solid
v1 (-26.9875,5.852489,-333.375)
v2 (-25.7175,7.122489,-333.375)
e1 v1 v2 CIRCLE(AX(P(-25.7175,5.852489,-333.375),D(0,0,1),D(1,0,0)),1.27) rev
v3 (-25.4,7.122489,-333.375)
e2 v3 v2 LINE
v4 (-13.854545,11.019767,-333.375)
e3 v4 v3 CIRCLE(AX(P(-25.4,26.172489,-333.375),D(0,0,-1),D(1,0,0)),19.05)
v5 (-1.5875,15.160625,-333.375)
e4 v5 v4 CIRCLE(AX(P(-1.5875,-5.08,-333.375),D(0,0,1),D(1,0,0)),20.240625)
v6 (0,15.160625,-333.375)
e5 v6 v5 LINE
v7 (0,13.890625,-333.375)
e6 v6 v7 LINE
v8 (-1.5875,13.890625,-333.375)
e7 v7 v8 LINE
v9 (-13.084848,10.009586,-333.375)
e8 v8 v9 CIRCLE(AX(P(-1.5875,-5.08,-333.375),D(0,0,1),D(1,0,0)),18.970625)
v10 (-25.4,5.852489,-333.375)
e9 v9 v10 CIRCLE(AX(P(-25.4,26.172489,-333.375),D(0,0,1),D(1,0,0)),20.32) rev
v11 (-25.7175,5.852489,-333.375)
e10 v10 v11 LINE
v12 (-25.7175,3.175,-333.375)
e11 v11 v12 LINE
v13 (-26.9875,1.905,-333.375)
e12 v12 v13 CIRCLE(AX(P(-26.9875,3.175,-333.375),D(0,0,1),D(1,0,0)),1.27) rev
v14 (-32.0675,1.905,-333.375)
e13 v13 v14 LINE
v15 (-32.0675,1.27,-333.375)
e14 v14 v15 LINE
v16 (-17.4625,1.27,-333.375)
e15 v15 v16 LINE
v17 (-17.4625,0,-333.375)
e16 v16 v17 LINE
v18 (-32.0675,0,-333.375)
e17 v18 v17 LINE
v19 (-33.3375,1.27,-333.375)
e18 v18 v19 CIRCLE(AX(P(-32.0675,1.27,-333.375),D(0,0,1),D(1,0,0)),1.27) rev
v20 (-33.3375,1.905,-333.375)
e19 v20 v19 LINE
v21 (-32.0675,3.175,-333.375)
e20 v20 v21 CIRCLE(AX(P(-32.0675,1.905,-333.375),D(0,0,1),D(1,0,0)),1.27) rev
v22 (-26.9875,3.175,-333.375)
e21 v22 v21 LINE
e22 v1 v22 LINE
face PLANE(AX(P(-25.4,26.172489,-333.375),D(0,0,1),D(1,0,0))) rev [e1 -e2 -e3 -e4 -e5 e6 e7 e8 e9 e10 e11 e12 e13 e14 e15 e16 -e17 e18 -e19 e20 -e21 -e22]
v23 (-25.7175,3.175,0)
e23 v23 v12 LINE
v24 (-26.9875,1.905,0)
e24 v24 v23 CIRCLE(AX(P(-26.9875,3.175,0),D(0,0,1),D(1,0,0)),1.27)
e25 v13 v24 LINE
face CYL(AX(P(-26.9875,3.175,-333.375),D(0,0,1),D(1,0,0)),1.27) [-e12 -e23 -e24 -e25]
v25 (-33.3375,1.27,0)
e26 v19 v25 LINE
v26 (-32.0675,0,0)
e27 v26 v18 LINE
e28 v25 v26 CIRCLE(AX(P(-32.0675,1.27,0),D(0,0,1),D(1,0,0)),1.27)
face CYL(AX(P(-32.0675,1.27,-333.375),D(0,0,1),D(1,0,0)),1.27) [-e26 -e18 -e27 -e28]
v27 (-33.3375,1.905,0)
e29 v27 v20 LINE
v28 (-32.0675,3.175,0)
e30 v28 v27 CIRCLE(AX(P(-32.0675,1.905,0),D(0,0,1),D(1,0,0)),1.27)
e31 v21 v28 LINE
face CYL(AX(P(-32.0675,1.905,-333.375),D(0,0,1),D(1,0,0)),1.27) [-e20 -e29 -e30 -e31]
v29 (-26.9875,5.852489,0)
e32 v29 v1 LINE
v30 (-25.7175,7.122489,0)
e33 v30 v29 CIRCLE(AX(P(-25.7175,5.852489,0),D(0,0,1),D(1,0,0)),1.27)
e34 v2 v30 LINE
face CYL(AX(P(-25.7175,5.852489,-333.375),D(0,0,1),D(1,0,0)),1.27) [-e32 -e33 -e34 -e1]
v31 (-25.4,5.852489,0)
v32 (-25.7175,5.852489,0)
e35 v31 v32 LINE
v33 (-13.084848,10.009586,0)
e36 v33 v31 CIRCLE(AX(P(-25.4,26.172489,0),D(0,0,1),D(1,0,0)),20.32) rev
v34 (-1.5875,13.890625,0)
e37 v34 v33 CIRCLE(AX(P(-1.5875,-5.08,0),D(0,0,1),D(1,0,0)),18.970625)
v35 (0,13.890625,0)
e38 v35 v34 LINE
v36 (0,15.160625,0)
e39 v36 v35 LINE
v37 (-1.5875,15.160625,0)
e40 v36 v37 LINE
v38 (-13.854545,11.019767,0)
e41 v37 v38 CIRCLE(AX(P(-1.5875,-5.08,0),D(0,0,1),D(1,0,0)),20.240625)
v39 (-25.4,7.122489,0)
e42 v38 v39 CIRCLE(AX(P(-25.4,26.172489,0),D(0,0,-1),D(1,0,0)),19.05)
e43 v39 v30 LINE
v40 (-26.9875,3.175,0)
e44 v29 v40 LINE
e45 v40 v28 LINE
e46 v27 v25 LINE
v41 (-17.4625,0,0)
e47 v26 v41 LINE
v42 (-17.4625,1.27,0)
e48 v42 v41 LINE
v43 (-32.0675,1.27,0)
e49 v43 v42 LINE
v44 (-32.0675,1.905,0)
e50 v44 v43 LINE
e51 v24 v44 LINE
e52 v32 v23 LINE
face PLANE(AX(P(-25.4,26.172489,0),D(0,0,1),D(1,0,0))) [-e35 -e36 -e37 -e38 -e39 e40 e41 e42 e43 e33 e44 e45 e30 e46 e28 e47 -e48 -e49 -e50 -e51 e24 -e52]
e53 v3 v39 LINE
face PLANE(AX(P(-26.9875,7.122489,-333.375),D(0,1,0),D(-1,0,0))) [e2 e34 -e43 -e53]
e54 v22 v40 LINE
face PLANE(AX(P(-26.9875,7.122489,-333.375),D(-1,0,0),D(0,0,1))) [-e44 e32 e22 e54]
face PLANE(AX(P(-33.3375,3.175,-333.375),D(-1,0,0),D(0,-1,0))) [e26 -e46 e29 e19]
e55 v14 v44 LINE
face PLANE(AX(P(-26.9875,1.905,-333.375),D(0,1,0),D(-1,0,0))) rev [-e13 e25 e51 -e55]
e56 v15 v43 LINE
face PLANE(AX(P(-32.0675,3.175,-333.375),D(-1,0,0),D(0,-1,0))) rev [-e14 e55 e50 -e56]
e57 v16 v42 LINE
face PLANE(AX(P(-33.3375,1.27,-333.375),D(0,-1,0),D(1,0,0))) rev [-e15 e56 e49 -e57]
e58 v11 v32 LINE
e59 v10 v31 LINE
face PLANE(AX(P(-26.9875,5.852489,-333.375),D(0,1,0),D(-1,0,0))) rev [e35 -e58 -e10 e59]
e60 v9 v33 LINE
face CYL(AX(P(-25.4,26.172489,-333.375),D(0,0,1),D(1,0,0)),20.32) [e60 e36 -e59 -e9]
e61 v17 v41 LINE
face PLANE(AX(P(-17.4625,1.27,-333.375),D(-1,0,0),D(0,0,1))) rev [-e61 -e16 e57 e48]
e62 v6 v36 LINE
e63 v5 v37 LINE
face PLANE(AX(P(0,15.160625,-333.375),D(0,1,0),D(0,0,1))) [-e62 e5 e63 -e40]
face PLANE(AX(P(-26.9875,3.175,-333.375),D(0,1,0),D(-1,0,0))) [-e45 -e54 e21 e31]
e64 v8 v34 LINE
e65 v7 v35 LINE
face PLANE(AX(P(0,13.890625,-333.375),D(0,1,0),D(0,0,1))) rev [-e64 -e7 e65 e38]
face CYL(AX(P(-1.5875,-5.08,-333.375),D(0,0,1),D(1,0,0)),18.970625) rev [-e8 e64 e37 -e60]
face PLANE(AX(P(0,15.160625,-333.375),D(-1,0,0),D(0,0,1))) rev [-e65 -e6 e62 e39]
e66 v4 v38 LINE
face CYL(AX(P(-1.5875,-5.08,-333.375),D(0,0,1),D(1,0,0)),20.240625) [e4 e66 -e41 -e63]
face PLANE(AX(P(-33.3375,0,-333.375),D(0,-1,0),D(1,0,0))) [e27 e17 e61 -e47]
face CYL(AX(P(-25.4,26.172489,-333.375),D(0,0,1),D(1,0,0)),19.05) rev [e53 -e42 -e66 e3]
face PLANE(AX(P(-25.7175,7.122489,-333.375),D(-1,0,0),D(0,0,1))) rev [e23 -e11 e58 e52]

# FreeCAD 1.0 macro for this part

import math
import FreeCAD as App
import Part
import Sketcher
Q = App.Units.Quantity


def edges_at(feature, points):
    """Names of the edges that pass closest to the given points."""
    edges = feature.Shape.Edges
    near = lambda p: min(range(len(edges)), key=lambda i: edges[i].distToShape(Part.Vertex(*p))[0])
    return sorted({f"Edge{near(p) + 1}" for p in points})

doc = App.newDocument("Part")
params = doc.addObject("Spreadsheet::Sheet", "Params")
for row, (alias, value) in enumerate([
    ("sketch1_radius", "0.8 in"),
    ("sketch1_radius2", "0.75 in"),
    ("sketch1_radius3", "0.796875 in"),
    ("sketch1_width", "0.25 in"),
    ("sketch1_width2", "0.0625 in"),
    ("pad1_length", "13.125 in"),
    ("fillet_radius", "0.05 in"),
], start=1):
    params.set(f"A{row}", alias)
    params.set(f"B{row}", "=" + value)
    params.setAlias(f"B{row}", alias)

body = doc.addObject("PartDesign::Body", "Body")

# Sketch on XY plane
sketch1 = body.newObject("Sketcher::SketchObject", "Sketch")
sketch1.AttachmentSupport = (doc.getObject("XY_Plane"), [""])
sketch1.MapMode = "FlatFace"
sketch1.addGeometry(Part.LineSegment(App.Vector(0, 15.16, 0), App.Vector(-1.59, 15.16, 0)), False)
sketch1.addGeometry(Part.ArcOfCircle(Part.Circle(App.Vector(-1.59, -5.08, 0), App.Vector(0, 0, 1), 20.24), math.radians(90), math.radians(127)), False)
sketch1.addGeometry(Part.ArcOfCircle(Part.Circle(App.Vector(-25.4, 26.17, 0), App.Vector(0, 0, 1), 19.05), math.radians(-90), math.radians(-53)), False)
sketch1.addGeometry(Part.LineSegment(App.Vector(-25.4, 7.12, 0), App.Vector(-26.99, 7.12, 0)), False)
sketch1.addGeometry(Part.LineSegment(App.Vector(-26.99, 7.12, 0), App.Vector(-26.99, 3.17, 0)), False)
sketch1.addGeometry(Part.LineSegment(App.Vector(-26.99, 3.17, 0), App.Vector(-33.34, 3.17, 0)), False)
sketch1.addGeometry(Part.LineSegment(App.Vector(-33.34, 3.17, 0), App.Vector(-33.34, 0, 0)), False)
sketch1.addGeometry(Part.LineSegment(App.Vector(-33.34, 0, 0), App.Vector(-17.46, 0, 0)), False)
sketch1.addGeometry(Part.LineSegment(App.Vector(-17.46, 0, 0), App.Vector(-17.46, 1.27, 0)), False)
sketch1.addGeometry(Part.LineSegment(App.Vector(-17.46, 1.27, 0), App.Vector(-32.07, 1.27, 0)), False)
sketch1.addGeometry(Part.LineSegment(App.Vector(-32.07, 1.27, 0), App.Vector(-32.07, 1.91, 0)), False)
sketch1.addGeometry(Part.LineSegment(App.Vector(-32.07, 1.91, 0), App.Vector(-25.72, 1.91, 0)), False)
sketch1.addGeometry(Part.LineSegment(App.Vector(-25.72, 1.91, 0), App.Vector(-25.72, 5.85, 0)), False)
sketch1.addGeometry(Part.LineSegment(App.Vector(-25.72, 5.85, 0), App.Vector(-25.4, 5.85, 0)), False)
sketch1.addGeometry(Part.ArcOfCircle(Part.Circle(App.Vector(-25.4, 26.17, 0), App.Vector(0, 0, 1), 20.32), math.radians(-90), math.radians(-53)), False)
sketch1.addGeometry(Part.ArcOfCircle(Part.Circle(App.Vector(-1.59, -5.08, 0), App.Vector(0, 0, 1), 18.97), math.radians(90), math.radians(127)), False)
sketch1.addGeometry(Part.LineSegment(App.Vector(-1.59, 13.89, 0), App.Vector(0, 13.89, 0)), False)
sketch1.addGeometry(Part.LineSegment(App.Vector(0, 13.89, 0), App.Vector(0, 15.16, 0)), False)
sketch1.addConstraint(Sketcher.Constraint("Tangent", 0, 2, 1, 1))
sketch1.addConstraint(Sketcher.Constraint("Tangent", 1, 2, 2, 2))
sketch1.addConstraint(Sketcher.Constraint("Tangent", 2, 1, 3, 1))
sketch1.addConstraint(Sketcher.Constraint("Coincident", 3, 2, 4, 1))
sketch1.addConstraint(Sketcher.Constraint("Coincident", 4, 2, 5, 1))
sketch1.addConstraint(Sketcher.Constraint("Coincident", 5, 2, 6, 1))
sketch1.addConstraint(Sketcher.Constraint("Coincident", 6, 2, 7, 1))
sketch1.addConstraint(Sketcher.Constraint("Coincident", 7, 2, 8, 1))
sketch1.addConstraint(Sketcher.Constraint("Coincident", 8, 2, 9, 1))
sketch1.addConstraint(Sketcher.Constraint("Coincident", 9, 2, 10, 1))
sketch1.addConstraint(Sketcher.Constraint("Coincident", 10, 2, 11, 1))
sketch1.addConstraint(Sketcher.Constraint("Coincident", 11, 2, 12, 1))
sketch1.addConstraint(Sketcher.Constraint("Coincident", 12, 2, 13, 1))
sketch1.addConstraint(Sketcher.Constraint("Tangent", 13, 2, 14, 1))
sketch1.addConstraint(Sketcher.Constraint("Tangent", 14, 2, 15, 2))
sketch1.addConstraint(Sketcher.Constraint("Tangent", 15, 1, 16, 1))
sketch1.addConstraint(Sketcher.Constraint("Coincident", 16, 2, 17, 1))
sketch1.addConstraint(Sketcher.Constraint("Coincident", 17, 2, 0, 1))
sketch1.addConstraint(Sketcher.Constraint("Horizontal", 0))
sketch1.addConstraint(Sketcher.Constraint("Horizontal", 3))
sketch1.addConstraint(Sketcher.Constraint("Vertical", 4))
sketch1.addConstraint(Sketcher.Constraint("Horizontal", 5))
sketch1.addConstraint(Sketcher.Constraint("Vertical", 6))
sketch1.addConstraint(Sketcher.Constraint("Horizontal", 7))
sketch1.addConstraint(Sketcher.Constraint("Vertical", 8))
sketch1.addConstraint(Sketcher.Constraint("Horizontal", 9))
sketch1.addConstraint(Sketcher.Constraint("Vertical", 10))
sketch1.addConstraint(Sketcher.Constraint("Horizontal", 11))
sketch1.addConstraint(Sketcher.Constraint("Vertical", 12))
sketch1.addConstraint(Sketcher.Constraint("Horizontal", 13))
sketch1.addConstraint(Sketcher.Constraint("Horizontal", 16))
sketch1.addConstraint(Sketcher.Constraint("Vertical", 17))
sketch1.addConstraint(Sketcher.Constraint("Coincident", 14, 3, 2, 3))
sketch1.addConstraint(Sketcher.Constraint("Coincident", 15, 3, 1, 3))
sketch1.addConstraint(Sketcher.Constraint("PointOnObject", 6, 2, -1))
sketch1.addConstraint(Sketcher.Constraint("PointOnObject", 16, 2, -2))
sketch1.addConstraint(Sketcher.Constraint("Equal", 0, 3))
sketch1.addConstraint(Sketcher.Constraint("Equal", 5, 11))
sketch1.addConstraint(Sketcher.Constraint("Equal", 4, 12))
sketch1.addConstraint(Sketcher.Constraint("Equal", 8, 17))
sketch1.addConstraint(Sketcher.Constraint("Radius", 14, Q("0.8 in")))
sketch1.addConstraint(Sketcher.Constraint("Radius", 2, Q("0.75 in")))
sketch1.addConstraint(Sketcher.Constraint("DistanceX", 2, 3, -1, 1, Q("1 in")))
sketch1.addConstraint(Sketcher.Constraint("Radius", 1, Q("0.796875 in")))
sketch1.addConstraint(Sketcher.Constraint("DistanceX", 5, 2, 5, 1, Q("0.25 in")))
sketch1.addConstraint(Sketcher.Constraint("DistanceY", 1, 3, -1, 1, Q("0.2 in")))
sketch1.addConstraint(Sketcher.Constraint("DistanceX", 9, 2, 4, 2, Q("0.2 in")))
sketch1.addConstraint(Sketcher.Constraint("DistanceX", 0, 2, 0, 1, Q("0.0625 in")))
sketch1.addConstraint(Sketcher.Constraint("DistanceX", 7, 1, 7, 2, Q("0.625 in")))
sketch1.addConstraint(Sketcher.Constraint("DistanceY", 6, 2, 6, 1, Q("0.125 in")))
sketch1.setExpression("Constraints[40]", "Params.sketch1_radius")
sketch1.setExpression("Constraints[41]", "Params.sketch1_radius2")
sketch1.setExpression("Constraints[43]", "Params.sketch1_radius3")
sketch1.setExpression("Constraints[44]", "Params.sketch1_width")
sketch1.setExpression("Constraints[47]", "Params.sketch1_width2")
pad1 = body.newObject("PartDesign::Pad", "Pad")
pad1.Profile = sketch1
pad1.setExpression("Length", "Params.pad1_length")
pad1.Reversed = True
doc.recompute()

fillet = body.newObject("PartDesign::Fillet", "Fillet")
fillet.Base = (pad1, edges_at(pad1, [
    (-33.337, 0, -166.688),
    (-33.337, 3.175, -166.688),
    (-26.988, 7.122, -166.688),
    (-25.718, 1.905, -166.688),
]))
fillet.setExpression("Radius", "Params.fillet_radius")

doc.recompute()
